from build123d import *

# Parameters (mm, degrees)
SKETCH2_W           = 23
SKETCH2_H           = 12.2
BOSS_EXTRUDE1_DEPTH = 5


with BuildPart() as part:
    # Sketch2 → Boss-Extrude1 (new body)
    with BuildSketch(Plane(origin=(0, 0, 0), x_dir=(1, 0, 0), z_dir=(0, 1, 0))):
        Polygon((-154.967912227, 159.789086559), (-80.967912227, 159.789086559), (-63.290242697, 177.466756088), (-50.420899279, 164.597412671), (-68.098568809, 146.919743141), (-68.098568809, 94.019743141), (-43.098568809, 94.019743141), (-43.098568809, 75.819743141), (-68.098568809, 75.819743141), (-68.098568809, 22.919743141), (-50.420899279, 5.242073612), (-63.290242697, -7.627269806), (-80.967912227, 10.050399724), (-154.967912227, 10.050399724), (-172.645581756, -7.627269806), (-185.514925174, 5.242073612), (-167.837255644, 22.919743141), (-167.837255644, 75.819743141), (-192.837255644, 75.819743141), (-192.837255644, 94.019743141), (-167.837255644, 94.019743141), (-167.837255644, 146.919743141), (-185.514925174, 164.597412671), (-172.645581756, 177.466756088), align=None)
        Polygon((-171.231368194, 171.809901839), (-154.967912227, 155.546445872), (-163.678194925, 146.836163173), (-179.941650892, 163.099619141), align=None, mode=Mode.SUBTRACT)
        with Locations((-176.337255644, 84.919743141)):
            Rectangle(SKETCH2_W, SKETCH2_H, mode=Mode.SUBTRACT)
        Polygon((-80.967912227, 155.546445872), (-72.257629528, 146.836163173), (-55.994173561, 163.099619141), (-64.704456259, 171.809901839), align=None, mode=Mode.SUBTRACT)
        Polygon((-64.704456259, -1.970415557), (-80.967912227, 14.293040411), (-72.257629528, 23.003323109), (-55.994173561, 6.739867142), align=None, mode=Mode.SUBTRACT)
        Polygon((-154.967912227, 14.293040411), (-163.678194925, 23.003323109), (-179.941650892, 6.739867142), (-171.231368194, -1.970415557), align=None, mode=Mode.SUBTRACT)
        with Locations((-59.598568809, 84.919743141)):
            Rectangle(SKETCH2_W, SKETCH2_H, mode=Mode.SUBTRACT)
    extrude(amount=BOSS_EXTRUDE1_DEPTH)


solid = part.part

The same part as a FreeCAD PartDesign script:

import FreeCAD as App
import Part
import Sketcher
Q = App.Units.Quantity


def add_polygon(sketch, points):
    """Adds a closed chain of lines whose ends are joined by coincident constraints."""
    first, n = sketch.GeometryCount, len(points)
    for a, b in zip(points, points[1:] + points[:1]):
        sketch.addGeometry(Part.LineSegment(App.Vector(*a, 0), App.Vector(*b, 0)), False)
    for i in range(n):
        sketch.addConstraint(Sketcher.Constraint("Coincident", first + i, 2, first + (i + 1) % n, 1))

doc = App.newDocument("Part")
params = doc.addObject("Spreadsheet::Sheet", "Params")
for row, (alias, value) in enumerate([
    ("sketch1_width", "74 mm"),
    ("sketch1_width2", "25 mm"),
    ("sketch1_width3", "23 mm"),
    ("sketch1_length", "25 mm"),
    ("sketch1_length2", "23 mm"),
    ("pad1_length", "5 mm"),
], start=1):
    params.set(f"A{row}", alias)
    params.set(f"B{row}", "=" + value)
    params.setAlias(f"B{row}", alias)

body = doc.addObject("PartDesign::Body", "Body")

sketch1 = body.newObject("Sketcher::SketchObject", "Sketch")
sketch1.AttachmentSupport = (doc.getObject("XZ_Plane"), [""])
sketch1.MapMode = "FlatFace"
add_polygon(sketch1, [(-80.967912, -159.789087), (-154.967912, -159.789087), (-172.645582, -177.466756), (-185.514925, -164.597413), (-167.837256, -146.919743), (-167.837256, -94.019743), (-192.837256, -94.019743), (-192.837256, -75.819743), (-167.837256, -75.819743), (-167.837256, -22.919743), (-185.514925, -5.242074), (-172.645582, 7.62727), (-154.967912, -10.0504), (-80.967912, -10.0504), (-63.290243, 7.62727), (-50.420899, -5.242074), (-68.098569, -22.919743), (-68.098569, -75.819743), (-43.098569, -75.819743), (-43.098569, -94.019743), (-68.098569, -94.019743), (-68.098569, -146.919743), (-50.420899, -164.597413), (-63.290243, -177.466756)])
add_polygon(sketch1, [(-64.704456, 1.970416), (-80.967912, -14.29304), (-72.25763, -23.003323), (-55.994174, -6.739867)])
add_polygon(sketch1, [(-154.967912, -14.29304), (-171.231368, 1.970416), (-179.941651, -6.739867), (-163.678195, -23.003323)])
add_polygon(sketch1, [(-71.098569, -78.819743), (-71.098569, -91.019743), (-48.098569, -91.019743), (-48.098569, -78.819743)])
add_polygon(sketch1, [(-80.967912, -155.546446), (-64.704456, -171.809902), (-55.994174, -163.099619), (-72.25763, -146.836163)])
add_polygon(sketch1, [(-187.837256, -78.819743), (-187.837256, -91.019743), (-164.837256, -91.019743), (-164.837256, -78.819743)])
add_polygon(sketch1, [(-171.231368, -171.809902), (-154.967912, -155.546446), (-163.678195, -146.836163), (-179.941651, -163.099619)])
sketch1.addConstraint([
    Sketcher.Constraint("Horizontal", 0),
    Sketcher.Constraint("Vertical", 4),
    Sketcher.Constraint("Horizontal", 5),
    Sketcher.Constraint("Vertical", 6),
    Sketcher.Constraint("Horizontal", 7),
    Sketcher.Constraint("Vertical", 8),
    Sketcher.Constraint("Horizontal", 12),
    Sketcher.Constraint("Vertical", 16),
    Sketcher.Constraint("Horizontal", 17),
    Sketcher.Constraint("Vertical", 18),
    Sketcher.Constraint("Horizontal", 19),
    Sketcher.Constraint("Vertical", 20),
    Sketcher.Constraint("Vertical", 32),
    Sketcher.Constraint("Horizontal", 33),
    Sketcher.Constraint("Vertical", 34),
    Sketcher.Constraint("Horizontal", 35),
    Sketcher.Constraint("Vertical", 40),
    Sketcher.Constraint("Horizontal", 41),
    Sketcher.Constraint("Vertical", 42),
    Sketcher.Constraint("Horizontal", 43),
    Sketcher.Constraint("Perpendicular", 1, 2),
    Sketcher.Constraint("Perpendicular", 2, 3),
    Sketcher.Constraint("Perpendicular", 3, 9),
    Sketcher.Constraint("Perpendicular", 9, 10),
    Sketcher.Constraint("Perpendicular", 10, 11),
    Sketcher.Constraint("Perpendicular", 11, 13),
    Sketcher.Constraint("Perpendicular", 13, 14),
    Sketcher.Constraint("Perpendicular", 14, 15),
    Sketcher.Constraint("Perpendicular", 15, 21),
    Sketcher.Constraint("Perpendicular", 21, 22),
    Sketcher.Constraint("Perpendicular", 22, 23),
    Sketcher.Constraint("Perpendicular", 23, 24),
    Sketcher.Constraint("Perpendicular", 24, 25),
    Sketcher.Constraint("Perpendicular", 25, 26),
    Sketcher.Constraint("Perpendicular", 26, 27),
    Sketcher.Constraint("Parallel", 27, 28),
    Sketcher.Constraint("Perpendicular", 28, 29),
    Sketcher.Constraint("Perpendicular", 29, 30),
    Sketcher.Constraint("Perpendicular", 30, 31),
    Sketcher.Constraint("Perpendicular", 31, 36),
    Sketcher.Constraint("Perpendicular", 36, 37),
    Sketcher.Constraint("Perpendicular", 37, 38),
    Sketcher.Constraint("Perpendicular", 38, 39),
    Sketcher.Constraint("Parallel", 39, 44),
    Sketcher.Constraint("Perpendicular", 44, 45),
    Sketcher.Constraint("Perpendicular", 45, 46),
    Sketcher.Constraint("Perpendicular", 46, 47),
    Sketcher.Constraint("Horizontal", 10, 2, 13, 2),
    Sketcher.Constraint("Horizontal", 9, 2, 14, 2),
    Sketcher.Constraint("Horizontal", 8, 2, 15, 2),
    Sketcher.Constraint("Horizontal", 7, 2, 16, 2),
    Sketcher.Constraint("Horizontal", 5, 2, 18, 2),
    Sketcher.Constraint("Horizontal", 3, 2, 20, 2),
    Sketcher.Constraint("Horizontal", 2, 2, 21, 2),
    Sketcher.Constraint("Horizontal", 1, 2, 22, 2),
    Sketcher.Constraint("Horizontal", 27, 2, 28, 2),
    Sketcher.Constraint("Horizontal", 26, 2, 29, 2),
    Sketcher.Constraint("Horizontal", 25, 2, 30, 2),
    Sketcher.Constraint("Horizontal", 33, 2, 40, 2),
    Sketcher.Constraint("Horizontal", 35, 2, 42, 2),
    Sketcher.Constraint("Horizontal", 39, 2, 44, 2),
    Sketcher.Constraint("Horizontal", 38, 2, 45, 2),
    Sketcher.Constraint("Horizontal", 37, 2, 46, 2),
    Sketcher.Constraint("Vertical", 4, 2, 7, 2),
    Sketcher.Constraint("Vertical", 2, 2, 9, 2),
    Sketcher.Constraint("Vertical", 1, 2, 10, 2),
    Sketcher.Constraint("Vertical", 0, 2, 11, 2),
    Sketcher.Constraint("Vertical", 16, 2, 19, 2),
    Sketcher.Constraint("Vertical", 14, 2, 21, 2),
    Sketcher.Constraint("Vertical", 23, 2, 24, 2),
    Sketcher.Constraint("Vertical", 11, 2, 31, 2),
    Sketcher.Constraint("Vertical", 27, 2, 36, 2),
    Sketcher.Constraint("Vertical", 26, 2, 37, 2),
    Sketcher.Constraint("Vertical", 25, 2, 38, 2),
    Sketcher.Constraint("Vertical", 31, 2, 44, 2),
    Sketcher.Constraint("Equal", 7, 17),
    Sketcher.Constraint("Equal", 35, 41),
    Sketcher.Constraint("Equal", 4, 8),
    Sketcher.Constraint("Equal", 1, 3),
    Sketcher.Constraint("DistanceX", 0, 2, 0, 1, Q("74 mm")),
    Sketcher.Constraint("DistanceX", 5, 2, 5, 1, Q("25 mm")),
    Sketcher.Constraint("DistanceX", 33, 1, 33, 2, Q("23 mm")),
    Sketcher.Constraint("Distance", 1, Q("25 mm")),
    Sketcher.Constraint("Distance", 24, Q("23 mm")),
    Sketcher.Constraint("DistanceY", 4, 1, 4, 2, Q("52.9 mm")),
    Sketcher.Constraint("DistanceY", 6, 1, 6, 2, Q("18.2 mm")),
    Sketcher.Constraint("DistanceY", 32, 2, 32, 1, Q("12.2 mm")),
    Sketcher.Constraint("DistanceX", 32, 2, 19, 2, Q("3 mm")),
    Sketcher.Constraint("DistanceY", 19, 2, 32, 2, Q("3 mm")),
    Sketcher.Constraint("DistanceX", 5, 2, 40, 2, Q("5 mm")),
    Sketcher.Constraint("Distance", 2, Q("18.2 mm")),
    Sketcher.Constraint("Distance", 25, Q("12.3182 mm")),
    Sketcher.Constraint("DistanceY", 11, 2, -1, 1, Q("10.0504 mm")),
    Sketcher.Constraint("DistanceX", 14, 2, -1, 1, Q("50.420899 mm")),
    Sketcher.Constraint("DistanceY", 36, 2, -1, 1, Q("171.809902 mm")),
    Sketcher.Constraint("DistanceY", 24, 2, -1, 1, Q("14.29304 mm")),
])
sketch1.setExpression("Constraints[127]", "Params.sketch1_width")
sketch1.setExpression("Constraints[128]", "Params.sketch1_width2")
sketch1.setExpression("Constraints[129]", "Params.sketch1_width3")
sketch1.setExpression("Constraints[130]", "Params.sketch1_length")
sketch1.setExpression("Constraints[131]", "Params.sketch1_length2")
pad1 = body.newObject("PartDesign::Pad", "Pad")
pad1.Profile = sketch1
pad1.setExpression("Length", "Params.pad1_length")
pad1.Reversed = True

doc.recompute()
